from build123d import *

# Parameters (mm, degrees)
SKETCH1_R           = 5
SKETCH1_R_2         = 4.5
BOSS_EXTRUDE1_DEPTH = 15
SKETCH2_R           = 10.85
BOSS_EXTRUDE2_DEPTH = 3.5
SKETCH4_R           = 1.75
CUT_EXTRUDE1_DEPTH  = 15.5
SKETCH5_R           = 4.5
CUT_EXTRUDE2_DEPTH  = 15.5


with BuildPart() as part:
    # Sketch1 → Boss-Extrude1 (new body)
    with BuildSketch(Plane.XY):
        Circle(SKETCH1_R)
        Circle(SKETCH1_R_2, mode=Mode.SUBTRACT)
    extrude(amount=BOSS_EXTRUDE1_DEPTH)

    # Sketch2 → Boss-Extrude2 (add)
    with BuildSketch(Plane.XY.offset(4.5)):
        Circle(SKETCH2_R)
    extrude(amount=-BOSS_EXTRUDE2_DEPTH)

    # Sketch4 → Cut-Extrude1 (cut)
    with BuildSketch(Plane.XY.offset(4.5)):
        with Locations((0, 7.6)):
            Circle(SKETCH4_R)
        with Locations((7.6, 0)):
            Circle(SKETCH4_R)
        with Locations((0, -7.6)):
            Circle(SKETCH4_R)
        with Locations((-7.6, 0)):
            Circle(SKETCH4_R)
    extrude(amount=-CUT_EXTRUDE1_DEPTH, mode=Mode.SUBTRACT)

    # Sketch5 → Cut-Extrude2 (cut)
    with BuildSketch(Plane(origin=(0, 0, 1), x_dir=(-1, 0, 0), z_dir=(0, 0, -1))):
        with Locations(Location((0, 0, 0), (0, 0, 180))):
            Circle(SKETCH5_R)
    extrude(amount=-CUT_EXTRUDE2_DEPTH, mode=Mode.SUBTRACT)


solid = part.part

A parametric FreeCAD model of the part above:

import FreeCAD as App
import Part
import Sketcher
Q = App.Units.Quantity

doc = App.newDocument("Part")
body = doc.addObject("PartDesign::Body", "Body")

# Sketch on XY plane
sketch1 = doc.addObject("Sketcher::SketchObject", "Sketch")
body.addObject(sketch1)
sketch1.AttachmentSupport = (doc.XY_Plane, [""])
sketch1.MapMode = "FlatFace"
sketch1.addGeometry(Part.Circle(App.Vector(0, 0, 0), App.Vector(0, 0, 1), 5), False)
sketch1.addGeometry(Part.Circle(App.Vector(0, 0, 0), App.Vector(0, 0, 1), 4.5), False)
sketch1.addConstraint(Sketcher.Constraint("Coincident", 0, 3, -1, 1))
sketch1.addConstraint(Sketcher.Constraint("Coincident", 1, 3, -1, 1))
sketch1.addConstraint(Sketcher.Constraint("Diameter", 0, Q("10 mm")))
sketch1.addConstraint(Sketcher.Constraint("Diameter", 1, Q("9 mm")))
pad1 = doc.addObject("PartDesign::Pad", "Pad")
body.addObject(pad1)
pad1.Profile = sketch1
pad1.Length = 15

# Sketch on XY plane
sketch2 = doc.addObject("Sketcher::SketchObject", "Sketch001")
body.addObject(sketch2)
sketch2.AttachmentSupport = (doc.XY_Plane, [""])
sketch2.MapMode = "FlatFace"
sketch2.AttachmentOffset = App.Placement(App.Vector(0, 0, 4.5), App.Rotation())
sketch2.addGeometry(Part.Circle(App.Vector(0, 0, 0), App.Vector(0, 0, 1), 11), False)
sketch2.addConstraint(Sketcher.Constraint("Coincident", 0, 3, -1, 1))
sketch2.addConstraint(Sketcher.Constraint("Diameter", 0, Q("21.7 mm")))
pad2 = doc.addObject("PartDesign::Pad", "Pad001")
body.addObject(pad2)
pad2.Profile = sketch2
pad2.Length = 3.5
pad2.Reversed = True

# Sketch on XY plane
sketch3 = doc.addObject("Sketcher::SketchObject", "Sketch002")
body.addObject(sketch3)
sketch3.AttachmentSupport = (doc.XY_Plane, [""])
sketch3.MapMode = "FlatFace"
sketch3.AttachmentOffset = App.Placement(App.Vector(0, 0, 4.5), App.Rotation())
sketch3.addGeometry(Part.Circle(App.Vector(0, 7.6, 0), App.Vector(0, 0, 1), 1.8), False)
sketch3.addGeometry(Part.Circle(App.Vector(7.6, 0, 0), App.Vector(0, 0, 1), 1.8), False)
sketch3.addGeometry(Part.Circle(App.Vector(0, -7.6, 0), App.Vector(0, 0, 1), 1.8), False)
sketch3.addGeometry(Part.Circle(App.Vector(-7.6, 0, 0), App.Vector(0, 0, 1), 1.8), False)
sketch3.addConstraint(Sketcher.Constraint("Equal", 0, 1))
sketch3.addConstraint(Sketcher.Constraint("Equal", 1, 2))
sketch3.addConstraint(Sketcher.Constraint("Equal", 2, 3))
sketch3.addConstraint(Sketcher.Constraint("Symmetric", 0, 3, 2, 3, -1, 1))
sketch3.addConstraint(Sketcher.Constraint("Symmetric", 1, 3, 3, 3, -1, 1))
sketch3.addConstraint(Sketcher.Constraint("PointOnObject", 0, 3, -2))
sketch3.addConstraint(Sketcher.Constraint("PointOnObject", 1, 3, -1))
sketch3.addConstraint(Sketcher.Constraint("Diameter", 0, Q("3.5 mm")))
sketch3.addConstraint(Sketcher.Constraint("DistanceY", -1, 1, 0, 3, Q("7.6 mm")))
sketch3.addConstraint(Sketcher.Constraint("DistanceX", -1, 1, 1, 3, Q("7.6 mm")))
pocket1 = doc.addObject("PartDesign::Pocket", "Pocket")
body.addObject(pocket1)
pocket1.Profile = sketch3
pocket1.Length = 15.5

# Sketch on XY plane
sketch4 = doc.addObject("Sketcher::SketchObject", "Sketch003")
body.addObject(sketch4)
sketch4.AttachmentSupport = (doc.XY_Plane, [""])
sketch4.MapMode = "FlatFace"
sketch4.AttachmentOffset = App.Placement(App.Vector(0, 0, 1), App.Rotation())
sketch4.addGeometry(Part.Circle(App.Vector(0, 0, 0), App.Vector(0, 0, 1), 4.5), False)
sketch4.addConstraint(Sketcher.Constraint("Coincident", 0, 3, -1, 1))
sketch4.addConstraint(Sketcher.Constraint("Diameter", 0, Q("9 mm")))
pocket2 = doc.addObject("PartDesign::Pocket", "Pocket001")
body.addObject(pocket2)
pocket2.Profile = sketch4
pocket2.Length = 15.5
pocket2.Reversed = True

doc.recompute()
